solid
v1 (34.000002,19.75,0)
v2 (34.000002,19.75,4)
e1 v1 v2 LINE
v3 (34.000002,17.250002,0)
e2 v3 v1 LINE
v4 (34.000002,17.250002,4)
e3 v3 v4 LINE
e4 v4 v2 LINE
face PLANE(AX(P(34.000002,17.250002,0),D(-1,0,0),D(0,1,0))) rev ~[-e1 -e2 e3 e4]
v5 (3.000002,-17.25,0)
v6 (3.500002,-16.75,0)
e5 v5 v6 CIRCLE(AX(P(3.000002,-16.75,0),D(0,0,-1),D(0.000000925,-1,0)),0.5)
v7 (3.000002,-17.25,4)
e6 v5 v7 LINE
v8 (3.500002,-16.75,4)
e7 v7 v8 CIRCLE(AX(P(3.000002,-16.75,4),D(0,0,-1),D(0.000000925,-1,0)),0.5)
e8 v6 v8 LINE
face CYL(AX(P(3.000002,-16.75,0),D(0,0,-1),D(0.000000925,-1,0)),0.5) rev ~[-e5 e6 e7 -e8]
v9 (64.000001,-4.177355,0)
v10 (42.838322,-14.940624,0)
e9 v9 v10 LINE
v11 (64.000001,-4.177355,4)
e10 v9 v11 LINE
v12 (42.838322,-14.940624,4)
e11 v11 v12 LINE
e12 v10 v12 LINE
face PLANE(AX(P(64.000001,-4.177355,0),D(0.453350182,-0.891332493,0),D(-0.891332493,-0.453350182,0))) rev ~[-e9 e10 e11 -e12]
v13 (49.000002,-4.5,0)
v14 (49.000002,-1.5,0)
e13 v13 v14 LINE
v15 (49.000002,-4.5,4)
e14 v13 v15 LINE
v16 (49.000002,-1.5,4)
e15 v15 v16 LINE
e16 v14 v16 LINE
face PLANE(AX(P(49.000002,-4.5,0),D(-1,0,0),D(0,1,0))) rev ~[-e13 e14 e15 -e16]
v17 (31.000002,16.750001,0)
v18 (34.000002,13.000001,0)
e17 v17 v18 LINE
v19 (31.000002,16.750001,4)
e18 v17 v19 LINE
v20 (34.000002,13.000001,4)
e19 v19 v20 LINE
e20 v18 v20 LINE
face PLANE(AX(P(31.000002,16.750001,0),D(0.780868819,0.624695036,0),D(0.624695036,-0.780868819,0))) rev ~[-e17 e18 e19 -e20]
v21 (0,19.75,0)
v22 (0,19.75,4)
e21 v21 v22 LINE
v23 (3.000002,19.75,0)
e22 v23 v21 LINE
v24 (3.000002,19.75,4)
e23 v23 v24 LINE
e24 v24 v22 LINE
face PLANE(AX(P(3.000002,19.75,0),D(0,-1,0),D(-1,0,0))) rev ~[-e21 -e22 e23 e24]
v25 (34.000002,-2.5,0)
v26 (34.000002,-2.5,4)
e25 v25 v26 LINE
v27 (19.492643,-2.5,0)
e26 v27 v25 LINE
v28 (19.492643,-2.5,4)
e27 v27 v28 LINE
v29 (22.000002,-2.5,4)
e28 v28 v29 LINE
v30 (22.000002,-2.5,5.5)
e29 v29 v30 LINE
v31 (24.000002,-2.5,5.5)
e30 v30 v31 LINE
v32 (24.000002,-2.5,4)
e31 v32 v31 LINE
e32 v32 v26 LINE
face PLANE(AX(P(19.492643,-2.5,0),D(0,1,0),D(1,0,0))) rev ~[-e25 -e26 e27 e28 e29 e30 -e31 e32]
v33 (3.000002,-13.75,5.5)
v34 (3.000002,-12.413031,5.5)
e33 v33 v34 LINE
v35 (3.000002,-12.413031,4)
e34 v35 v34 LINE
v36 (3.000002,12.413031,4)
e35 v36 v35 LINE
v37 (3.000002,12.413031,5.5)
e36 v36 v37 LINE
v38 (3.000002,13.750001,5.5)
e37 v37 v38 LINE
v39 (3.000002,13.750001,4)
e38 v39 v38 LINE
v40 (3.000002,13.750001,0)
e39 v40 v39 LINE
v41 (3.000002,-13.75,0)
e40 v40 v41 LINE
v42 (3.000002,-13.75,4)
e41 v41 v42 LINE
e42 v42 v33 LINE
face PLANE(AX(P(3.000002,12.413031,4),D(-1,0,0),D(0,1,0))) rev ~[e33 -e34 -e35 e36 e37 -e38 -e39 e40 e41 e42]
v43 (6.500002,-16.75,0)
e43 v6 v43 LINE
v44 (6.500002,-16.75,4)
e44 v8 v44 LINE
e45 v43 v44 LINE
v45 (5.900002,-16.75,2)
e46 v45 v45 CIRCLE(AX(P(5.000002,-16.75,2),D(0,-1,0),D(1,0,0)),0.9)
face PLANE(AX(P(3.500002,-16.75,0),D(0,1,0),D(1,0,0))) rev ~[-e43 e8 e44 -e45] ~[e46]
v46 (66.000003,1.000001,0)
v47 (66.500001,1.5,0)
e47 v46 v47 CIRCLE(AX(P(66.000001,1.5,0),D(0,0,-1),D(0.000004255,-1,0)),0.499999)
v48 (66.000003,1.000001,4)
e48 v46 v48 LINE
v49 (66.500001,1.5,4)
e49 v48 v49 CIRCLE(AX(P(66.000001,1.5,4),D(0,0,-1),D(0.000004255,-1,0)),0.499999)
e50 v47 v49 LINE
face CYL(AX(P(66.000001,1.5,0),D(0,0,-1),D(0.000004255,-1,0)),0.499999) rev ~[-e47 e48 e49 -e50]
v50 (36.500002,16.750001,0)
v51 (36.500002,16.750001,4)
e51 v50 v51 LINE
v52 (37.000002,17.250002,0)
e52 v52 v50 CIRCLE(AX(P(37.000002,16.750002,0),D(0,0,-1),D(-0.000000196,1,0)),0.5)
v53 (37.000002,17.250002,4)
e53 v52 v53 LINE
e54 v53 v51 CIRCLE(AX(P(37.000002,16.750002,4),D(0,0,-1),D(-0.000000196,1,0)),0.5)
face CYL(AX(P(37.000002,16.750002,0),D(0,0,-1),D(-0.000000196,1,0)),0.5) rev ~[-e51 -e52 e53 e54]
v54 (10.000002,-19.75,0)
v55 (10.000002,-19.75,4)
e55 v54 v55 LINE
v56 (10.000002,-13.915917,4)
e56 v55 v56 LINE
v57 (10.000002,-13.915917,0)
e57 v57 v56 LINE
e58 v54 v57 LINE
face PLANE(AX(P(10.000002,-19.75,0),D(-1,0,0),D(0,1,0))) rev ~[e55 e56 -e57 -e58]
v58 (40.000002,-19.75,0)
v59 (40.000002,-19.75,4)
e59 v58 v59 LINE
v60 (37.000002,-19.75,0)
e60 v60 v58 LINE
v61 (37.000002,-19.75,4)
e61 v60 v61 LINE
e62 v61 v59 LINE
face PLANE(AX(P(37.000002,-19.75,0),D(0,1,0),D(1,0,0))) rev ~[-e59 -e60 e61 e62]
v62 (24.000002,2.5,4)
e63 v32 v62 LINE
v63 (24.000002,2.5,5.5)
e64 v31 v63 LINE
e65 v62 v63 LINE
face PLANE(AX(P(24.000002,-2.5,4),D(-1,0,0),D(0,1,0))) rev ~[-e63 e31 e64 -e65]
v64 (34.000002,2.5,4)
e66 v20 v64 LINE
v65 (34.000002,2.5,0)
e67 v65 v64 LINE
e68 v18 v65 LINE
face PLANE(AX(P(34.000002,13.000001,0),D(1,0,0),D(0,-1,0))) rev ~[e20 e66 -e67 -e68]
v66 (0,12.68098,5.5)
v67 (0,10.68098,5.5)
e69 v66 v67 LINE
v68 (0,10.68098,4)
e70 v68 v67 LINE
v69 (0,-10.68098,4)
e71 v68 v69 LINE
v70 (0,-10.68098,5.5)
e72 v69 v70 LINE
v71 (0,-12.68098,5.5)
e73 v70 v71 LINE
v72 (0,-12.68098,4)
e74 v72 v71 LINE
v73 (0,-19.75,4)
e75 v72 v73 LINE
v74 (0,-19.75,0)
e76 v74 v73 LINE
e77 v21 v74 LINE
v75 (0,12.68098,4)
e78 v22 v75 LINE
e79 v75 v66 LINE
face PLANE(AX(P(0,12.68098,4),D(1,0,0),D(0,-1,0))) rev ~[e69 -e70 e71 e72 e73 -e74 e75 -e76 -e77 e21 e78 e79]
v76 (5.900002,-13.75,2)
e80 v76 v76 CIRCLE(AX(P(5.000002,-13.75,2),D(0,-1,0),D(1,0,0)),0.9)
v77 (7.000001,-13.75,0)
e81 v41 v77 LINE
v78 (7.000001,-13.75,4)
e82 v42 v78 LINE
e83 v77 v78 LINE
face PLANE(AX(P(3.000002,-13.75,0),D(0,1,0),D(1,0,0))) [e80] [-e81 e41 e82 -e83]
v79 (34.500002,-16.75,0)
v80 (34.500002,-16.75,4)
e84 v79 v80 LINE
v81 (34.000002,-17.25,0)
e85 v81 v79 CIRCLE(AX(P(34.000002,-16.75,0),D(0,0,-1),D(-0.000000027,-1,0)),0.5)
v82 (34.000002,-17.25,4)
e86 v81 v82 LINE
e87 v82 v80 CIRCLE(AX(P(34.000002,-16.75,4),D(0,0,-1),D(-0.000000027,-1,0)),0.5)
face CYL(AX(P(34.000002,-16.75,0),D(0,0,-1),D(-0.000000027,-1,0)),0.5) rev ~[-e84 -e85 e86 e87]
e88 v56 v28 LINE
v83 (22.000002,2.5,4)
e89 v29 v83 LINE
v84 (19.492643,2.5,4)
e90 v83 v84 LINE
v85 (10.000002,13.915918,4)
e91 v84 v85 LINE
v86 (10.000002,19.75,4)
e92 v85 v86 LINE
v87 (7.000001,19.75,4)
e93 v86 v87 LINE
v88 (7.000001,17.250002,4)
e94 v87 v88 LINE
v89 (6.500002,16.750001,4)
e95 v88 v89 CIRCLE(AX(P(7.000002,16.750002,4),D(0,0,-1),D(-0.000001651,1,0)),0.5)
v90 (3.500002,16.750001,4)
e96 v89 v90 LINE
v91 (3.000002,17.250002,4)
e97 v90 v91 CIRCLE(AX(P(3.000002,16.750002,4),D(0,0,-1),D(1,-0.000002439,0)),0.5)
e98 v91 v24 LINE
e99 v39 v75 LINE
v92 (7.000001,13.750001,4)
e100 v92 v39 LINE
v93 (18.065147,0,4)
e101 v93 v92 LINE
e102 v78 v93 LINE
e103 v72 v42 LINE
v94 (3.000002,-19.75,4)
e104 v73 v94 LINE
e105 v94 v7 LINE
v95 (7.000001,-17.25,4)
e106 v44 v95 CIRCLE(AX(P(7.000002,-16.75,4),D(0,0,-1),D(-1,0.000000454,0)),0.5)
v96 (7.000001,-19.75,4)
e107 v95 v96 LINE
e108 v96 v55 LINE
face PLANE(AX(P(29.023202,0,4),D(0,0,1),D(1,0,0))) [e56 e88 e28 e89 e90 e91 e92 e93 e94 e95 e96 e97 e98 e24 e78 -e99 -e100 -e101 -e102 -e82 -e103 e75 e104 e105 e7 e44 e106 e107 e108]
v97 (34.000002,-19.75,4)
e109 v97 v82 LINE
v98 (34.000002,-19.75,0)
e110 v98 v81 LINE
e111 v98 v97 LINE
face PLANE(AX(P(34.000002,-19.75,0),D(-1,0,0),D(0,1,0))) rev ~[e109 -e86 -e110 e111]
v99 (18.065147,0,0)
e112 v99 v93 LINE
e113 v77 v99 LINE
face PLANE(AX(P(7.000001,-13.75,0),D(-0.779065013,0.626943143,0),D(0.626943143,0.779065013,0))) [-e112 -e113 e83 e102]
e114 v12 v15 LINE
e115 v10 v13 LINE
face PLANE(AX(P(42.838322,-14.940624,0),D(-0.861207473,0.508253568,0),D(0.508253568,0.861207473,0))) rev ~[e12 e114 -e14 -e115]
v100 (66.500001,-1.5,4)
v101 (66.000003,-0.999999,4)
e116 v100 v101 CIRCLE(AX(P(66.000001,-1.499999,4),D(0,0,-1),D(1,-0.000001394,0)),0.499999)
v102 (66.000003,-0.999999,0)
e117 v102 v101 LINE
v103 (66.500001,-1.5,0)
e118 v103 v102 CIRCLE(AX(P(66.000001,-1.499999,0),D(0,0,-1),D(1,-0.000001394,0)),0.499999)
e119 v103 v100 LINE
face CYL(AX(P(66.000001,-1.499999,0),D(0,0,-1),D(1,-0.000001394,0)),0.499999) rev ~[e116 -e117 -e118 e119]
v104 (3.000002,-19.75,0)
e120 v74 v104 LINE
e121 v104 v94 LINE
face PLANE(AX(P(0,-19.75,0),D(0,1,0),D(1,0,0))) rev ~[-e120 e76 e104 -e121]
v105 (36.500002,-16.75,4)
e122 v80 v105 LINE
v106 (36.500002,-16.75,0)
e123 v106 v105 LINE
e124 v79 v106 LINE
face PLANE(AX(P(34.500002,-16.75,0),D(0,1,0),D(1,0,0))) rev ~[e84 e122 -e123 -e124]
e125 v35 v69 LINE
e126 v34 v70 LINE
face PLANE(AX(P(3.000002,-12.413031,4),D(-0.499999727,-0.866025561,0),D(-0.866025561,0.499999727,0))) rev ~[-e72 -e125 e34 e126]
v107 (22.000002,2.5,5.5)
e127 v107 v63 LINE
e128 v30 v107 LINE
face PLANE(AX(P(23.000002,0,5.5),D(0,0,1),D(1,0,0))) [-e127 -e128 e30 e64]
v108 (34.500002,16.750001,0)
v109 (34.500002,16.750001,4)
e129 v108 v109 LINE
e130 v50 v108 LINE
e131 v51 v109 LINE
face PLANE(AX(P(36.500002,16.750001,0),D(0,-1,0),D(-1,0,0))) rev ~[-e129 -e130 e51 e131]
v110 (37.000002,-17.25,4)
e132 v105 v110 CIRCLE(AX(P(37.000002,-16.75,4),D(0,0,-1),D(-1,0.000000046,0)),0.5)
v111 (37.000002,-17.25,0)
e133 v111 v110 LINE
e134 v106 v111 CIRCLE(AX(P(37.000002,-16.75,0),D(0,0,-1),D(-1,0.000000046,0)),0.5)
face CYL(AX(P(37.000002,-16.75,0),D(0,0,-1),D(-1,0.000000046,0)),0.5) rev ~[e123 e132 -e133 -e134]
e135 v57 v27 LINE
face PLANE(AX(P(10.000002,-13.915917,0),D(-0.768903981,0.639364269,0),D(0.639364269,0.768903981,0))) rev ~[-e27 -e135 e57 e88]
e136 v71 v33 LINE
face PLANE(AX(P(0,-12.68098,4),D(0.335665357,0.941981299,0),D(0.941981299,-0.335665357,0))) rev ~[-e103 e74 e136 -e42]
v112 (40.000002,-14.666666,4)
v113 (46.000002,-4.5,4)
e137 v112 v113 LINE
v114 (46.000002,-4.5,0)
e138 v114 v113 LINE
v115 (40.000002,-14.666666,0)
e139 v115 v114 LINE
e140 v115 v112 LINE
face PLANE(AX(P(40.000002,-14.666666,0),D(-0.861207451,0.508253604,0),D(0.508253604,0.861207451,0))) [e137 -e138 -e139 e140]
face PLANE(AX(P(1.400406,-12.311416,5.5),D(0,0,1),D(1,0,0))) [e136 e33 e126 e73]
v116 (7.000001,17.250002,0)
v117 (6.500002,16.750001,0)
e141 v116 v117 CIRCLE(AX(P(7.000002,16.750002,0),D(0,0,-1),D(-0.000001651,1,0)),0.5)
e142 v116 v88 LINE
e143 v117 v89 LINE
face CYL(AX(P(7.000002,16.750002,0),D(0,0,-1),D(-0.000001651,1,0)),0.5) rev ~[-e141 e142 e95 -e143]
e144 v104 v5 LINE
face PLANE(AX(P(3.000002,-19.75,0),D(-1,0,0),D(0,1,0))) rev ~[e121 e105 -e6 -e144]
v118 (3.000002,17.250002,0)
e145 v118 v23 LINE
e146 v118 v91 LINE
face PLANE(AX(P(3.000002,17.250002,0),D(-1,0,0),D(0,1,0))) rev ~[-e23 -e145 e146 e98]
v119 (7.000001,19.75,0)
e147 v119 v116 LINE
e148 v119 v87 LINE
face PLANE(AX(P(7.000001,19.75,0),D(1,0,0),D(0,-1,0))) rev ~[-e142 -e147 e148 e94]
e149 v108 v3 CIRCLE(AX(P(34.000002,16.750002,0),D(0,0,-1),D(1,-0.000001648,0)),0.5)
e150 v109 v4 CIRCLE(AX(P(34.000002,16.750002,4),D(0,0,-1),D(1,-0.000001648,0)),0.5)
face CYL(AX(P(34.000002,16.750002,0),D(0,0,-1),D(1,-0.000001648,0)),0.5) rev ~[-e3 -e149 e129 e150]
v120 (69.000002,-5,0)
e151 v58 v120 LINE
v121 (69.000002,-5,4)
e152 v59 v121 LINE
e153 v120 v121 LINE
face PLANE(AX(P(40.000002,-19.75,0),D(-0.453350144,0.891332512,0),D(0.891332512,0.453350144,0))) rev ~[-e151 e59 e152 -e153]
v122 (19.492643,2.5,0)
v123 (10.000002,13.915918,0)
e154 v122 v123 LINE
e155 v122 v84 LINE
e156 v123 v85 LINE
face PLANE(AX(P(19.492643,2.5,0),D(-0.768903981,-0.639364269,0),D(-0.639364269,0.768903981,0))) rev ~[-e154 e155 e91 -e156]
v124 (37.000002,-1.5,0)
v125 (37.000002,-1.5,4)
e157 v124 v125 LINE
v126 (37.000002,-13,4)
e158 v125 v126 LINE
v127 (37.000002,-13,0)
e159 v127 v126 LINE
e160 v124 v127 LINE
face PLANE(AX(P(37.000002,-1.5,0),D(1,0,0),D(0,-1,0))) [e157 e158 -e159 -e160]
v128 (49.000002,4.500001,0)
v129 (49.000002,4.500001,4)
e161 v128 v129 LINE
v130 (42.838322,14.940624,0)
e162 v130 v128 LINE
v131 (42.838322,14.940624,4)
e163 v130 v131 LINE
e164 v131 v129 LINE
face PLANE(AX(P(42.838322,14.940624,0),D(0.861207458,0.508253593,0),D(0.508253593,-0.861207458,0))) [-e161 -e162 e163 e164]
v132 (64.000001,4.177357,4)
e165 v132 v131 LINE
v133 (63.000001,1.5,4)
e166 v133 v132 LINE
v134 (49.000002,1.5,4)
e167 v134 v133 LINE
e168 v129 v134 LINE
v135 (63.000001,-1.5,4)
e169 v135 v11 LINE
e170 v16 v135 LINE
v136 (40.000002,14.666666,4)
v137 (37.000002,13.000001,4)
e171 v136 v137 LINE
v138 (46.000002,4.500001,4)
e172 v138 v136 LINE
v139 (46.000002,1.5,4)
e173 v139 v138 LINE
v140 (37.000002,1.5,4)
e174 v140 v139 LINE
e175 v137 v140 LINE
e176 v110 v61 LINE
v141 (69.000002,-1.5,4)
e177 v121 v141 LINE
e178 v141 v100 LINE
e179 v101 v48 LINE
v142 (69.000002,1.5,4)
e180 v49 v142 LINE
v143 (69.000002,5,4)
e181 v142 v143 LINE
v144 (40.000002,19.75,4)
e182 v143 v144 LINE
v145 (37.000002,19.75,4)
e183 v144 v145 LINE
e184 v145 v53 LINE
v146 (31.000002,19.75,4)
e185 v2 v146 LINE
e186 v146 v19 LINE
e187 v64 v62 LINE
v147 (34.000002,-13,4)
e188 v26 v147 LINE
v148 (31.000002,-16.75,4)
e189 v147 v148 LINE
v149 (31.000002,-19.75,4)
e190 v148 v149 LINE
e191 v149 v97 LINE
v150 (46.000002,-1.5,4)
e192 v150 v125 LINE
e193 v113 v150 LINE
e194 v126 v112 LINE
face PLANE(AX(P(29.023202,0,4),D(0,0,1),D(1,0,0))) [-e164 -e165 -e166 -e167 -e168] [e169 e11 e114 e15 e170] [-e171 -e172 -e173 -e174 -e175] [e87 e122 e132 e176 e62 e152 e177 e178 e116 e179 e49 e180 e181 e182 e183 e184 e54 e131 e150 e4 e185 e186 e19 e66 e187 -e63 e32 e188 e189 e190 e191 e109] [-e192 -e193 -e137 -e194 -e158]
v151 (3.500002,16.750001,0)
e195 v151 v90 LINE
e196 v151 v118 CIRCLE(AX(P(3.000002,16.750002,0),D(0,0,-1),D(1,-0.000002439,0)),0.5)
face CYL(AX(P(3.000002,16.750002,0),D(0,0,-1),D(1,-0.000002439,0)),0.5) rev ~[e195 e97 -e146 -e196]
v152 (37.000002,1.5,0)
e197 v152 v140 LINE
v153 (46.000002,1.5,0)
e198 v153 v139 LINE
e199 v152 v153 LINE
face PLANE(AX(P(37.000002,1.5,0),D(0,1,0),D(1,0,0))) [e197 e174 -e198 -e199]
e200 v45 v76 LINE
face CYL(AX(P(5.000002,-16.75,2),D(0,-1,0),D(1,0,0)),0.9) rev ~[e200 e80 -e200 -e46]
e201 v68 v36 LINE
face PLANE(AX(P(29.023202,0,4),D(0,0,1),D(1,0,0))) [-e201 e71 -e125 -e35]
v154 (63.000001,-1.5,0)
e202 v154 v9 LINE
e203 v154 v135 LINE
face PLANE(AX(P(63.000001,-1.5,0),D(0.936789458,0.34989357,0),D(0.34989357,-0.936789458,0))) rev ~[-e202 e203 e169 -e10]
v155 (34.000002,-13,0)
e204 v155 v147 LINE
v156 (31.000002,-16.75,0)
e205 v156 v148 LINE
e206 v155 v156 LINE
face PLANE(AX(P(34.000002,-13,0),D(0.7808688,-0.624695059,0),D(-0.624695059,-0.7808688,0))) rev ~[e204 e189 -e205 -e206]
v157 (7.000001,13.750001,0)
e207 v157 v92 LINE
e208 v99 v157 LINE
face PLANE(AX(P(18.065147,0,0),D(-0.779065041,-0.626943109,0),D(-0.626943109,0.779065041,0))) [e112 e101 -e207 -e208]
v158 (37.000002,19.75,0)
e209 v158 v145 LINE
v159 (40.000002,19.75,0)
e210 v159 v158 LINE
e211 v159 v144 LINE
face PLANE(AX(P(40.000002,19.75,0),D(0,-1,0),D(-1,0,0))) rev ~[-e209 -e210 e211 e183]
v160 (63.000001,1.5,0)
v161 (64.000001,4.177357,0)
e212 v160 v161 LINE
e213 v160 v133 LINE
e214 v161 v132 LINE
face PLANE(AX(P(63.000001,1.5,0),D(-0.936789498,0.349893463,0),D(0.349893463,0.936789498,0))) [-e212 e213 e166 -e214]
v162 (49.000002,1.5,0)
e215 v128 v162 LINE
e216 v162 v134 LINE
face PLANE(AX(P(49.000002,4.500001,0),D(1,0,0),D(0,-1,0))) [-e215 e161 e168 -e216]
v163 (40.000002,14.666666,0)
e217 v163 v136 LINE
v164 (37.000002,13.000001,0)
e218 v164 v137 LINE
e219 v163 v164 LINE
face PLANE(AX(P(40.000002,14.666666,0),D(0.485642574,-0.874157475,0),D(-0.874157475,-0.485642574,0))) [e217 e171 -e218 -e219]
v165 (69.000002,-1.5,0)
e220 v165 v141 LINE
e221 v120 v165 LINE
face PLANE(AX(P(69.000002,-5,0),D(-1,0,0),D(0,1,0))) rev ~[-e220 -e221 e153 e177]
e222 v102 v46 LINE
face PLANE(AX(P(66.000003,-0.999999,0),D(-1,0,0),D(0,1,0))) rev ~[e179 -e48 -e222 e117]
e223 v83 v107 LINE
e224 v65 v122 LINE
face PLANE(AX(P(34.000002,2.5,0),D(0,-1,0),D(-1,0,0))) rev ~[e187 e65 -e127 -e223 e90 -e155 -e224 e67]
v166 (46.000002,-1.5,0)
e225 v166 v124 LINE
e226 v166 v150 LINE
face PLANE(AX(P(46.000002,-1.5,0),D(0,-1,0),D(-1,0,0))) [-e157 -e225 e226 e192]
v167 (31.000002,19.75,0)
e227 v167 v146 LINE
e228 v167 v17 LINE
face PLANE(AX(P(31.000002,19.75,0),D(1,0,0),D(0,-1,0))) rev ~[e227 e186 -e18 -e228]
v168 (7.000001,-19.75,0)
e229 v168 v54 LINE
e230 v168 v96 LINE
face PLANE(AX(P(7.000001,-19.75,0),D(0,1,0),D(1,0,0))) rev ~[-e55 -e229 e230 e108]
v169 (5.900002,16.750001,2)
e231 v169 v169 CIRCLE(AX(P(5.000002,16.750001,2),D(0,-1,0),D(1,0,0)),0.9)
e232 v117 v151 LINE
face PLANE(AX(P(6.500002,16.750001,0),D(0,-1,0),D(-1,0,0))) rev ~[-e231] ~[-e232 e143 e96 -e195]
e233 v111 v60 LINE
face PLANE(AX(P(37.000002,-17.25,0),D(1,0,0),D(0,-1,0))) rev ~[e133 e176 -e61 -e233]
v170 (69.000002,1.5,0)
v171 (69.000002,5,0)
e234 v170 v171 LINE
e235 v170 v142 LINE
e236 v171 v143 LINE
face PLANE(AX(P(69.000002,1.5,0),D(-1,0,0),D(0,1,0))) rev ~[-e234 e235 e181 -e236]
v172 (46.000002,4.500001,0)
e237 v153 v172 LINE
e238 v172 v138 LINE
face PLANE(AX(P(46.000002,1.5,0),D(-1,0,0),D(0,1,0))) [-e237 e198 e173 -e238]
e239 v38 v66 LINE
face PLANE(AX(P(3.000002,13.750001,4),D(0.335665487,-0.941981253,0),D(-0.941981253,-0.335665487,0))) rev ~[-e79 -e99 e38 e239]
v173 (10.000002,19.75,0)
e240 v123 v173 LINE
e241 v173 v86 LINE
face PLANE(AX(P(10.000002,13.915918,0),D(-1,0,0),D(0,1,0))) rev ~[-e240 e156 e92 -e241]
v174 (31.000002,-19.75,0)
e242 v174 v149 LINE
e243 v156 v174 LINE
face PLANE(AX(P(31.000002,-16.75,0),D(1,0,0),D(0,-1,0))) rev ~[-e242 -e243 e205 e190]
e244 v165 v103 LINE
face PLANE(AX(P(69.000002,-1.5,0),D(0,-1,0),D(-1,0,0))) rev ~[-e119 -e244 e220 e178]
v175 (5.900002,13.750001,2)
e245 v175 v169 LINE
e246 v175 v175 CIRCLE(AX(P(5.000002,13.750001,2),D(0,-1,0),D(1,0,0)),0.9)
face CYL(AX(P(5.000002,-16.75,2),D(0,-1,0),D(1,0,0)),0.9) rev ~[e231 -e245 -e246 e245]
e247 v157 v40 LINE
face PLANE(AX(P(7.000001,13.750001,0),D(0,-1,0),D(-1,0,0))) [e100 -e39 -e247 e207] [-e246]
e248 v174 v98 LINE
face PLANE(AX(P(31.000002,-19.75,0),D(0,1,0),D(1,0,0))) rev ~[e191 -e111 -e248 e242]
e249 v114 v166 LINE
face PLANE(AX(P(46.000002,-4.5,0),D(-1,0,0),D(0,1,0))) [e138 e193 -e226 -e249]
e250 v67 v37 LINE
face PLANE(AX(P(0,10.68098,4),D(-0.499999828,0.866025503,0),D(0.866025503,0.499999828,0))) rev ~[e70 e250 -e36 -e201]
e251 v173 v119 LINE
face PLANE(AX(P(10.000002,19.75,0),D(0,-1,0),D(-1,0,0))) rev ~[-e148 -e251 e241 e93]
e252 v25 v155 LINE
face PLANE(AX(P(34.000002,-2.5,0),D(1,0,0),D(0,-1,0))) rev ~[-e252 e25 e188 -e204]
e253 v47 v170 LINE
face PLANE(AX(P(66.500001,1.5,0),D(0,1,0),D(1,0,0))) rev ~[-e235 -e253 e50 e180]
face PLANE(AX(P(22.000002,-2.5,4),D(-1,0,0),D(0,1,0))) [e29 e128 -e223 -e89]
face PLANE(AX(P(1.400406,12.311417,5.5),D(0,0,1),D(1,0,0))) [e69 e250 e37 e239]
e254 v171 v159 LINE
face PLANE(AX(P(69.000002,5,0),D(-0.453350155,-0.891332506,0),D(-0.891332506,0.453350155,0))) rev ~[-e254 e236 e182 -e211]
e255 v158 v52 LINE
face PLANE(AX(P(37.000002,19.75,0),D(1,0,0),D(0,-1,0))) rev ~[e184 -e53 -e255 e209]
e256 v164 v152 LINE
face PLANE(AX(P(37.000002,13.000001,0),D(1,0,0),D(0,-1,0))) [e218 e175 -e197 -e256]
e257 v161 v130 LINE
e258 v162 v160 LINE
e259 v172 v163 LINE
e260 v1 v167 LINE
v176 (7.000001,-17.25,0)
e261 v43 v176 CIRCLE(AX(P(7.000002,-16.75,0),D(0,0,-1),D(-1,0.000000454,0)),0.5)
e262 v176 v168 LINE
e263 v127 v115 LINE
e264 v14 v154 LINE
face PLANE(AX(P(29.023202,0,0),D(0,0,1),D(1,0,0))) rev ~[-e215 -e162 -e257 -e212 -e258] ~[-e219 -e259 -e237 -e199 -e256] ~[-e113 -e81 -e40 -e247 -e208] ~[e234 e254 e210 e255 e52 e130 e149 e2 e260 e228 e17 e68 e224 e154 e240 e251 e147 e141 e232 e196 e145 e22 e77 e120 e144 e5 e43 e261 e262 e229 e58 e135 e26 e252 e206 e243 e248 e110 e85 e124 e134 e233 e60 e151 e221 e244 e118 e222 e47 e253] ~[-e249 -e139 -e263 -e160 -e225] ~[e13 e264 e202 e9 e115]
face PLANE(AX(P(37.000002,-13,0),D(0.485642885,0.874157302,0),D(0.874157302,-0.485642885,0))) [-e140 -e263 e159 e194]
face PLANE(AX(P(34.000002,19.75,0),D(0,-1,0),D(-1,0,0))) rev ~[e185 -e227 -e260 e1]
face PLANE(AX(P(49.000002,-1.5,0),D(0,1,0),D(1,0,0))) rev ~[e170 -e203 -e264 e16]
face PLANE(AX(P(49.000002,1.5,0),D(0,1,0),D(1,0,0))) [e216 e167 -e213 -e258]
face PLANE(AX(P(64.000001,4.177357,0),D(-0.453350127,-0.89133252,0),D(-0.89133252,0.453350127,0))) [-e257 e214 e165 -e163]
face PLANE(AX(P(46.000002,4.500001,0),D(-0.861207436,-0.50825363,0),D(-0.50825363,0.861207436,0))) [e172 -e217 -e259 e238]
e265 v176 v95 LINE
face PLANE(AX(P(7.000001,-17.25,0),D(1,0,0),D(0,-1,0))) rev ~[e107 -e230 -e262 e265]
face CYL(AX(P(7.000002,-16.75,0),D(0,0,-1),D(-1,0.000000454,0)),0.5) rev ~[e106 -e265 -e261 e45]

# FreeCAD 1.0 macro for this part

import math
import FreeCAD as App
import Part
import Sketcher
Q = App.Units.Quantity

doc = App.newDocument("Part")
params = doc.addObject("Spreadsheet::Sheet", "Params")
for row, (alias, value) in enumerate([
    ("sketch1_radius", "0.499999 mm"),
    ("sketch1_width", "3 mm"),
    ("sketch1_width2", "2 mm"),
    ("sketch1_width3", "9 mm"),
    ("sketch1_width4", "14 mm"),
    ("pad1_length", "4 mm"),
    ("sketch2_diameter", "1.8 mm"),
    ("pocket1_length", "52 mm"),
    ("sketch3_width", "2 mm"),
    ("sketch3_height", "5 mm"),
    ("pad2_length", "1.5 mm"),
], start=1):
    params.set(f"A{row}", alias)
    params.set(f"B{row}", "=" + value)
    params.setAlias(f"B{row}", alias)

body = doc.addObject("PartDesign::Body", "Body")

sketch1 = body.newObject("Sketcher::SketchObject", "Sketch")
sketch1.AttachmentSupport = (doc.getObject("XY_Plane"), [""])
sketch1.MapMode = "FlatFace"
sketch1.addGeometry([
    Part.LineSegment(App.Vector(66, -1, 0), App.Vector(66, 1, 0)),
    Part.ArcOfCircle(Part.Circle(App.Vector(66, 1.5, 0), App.Vector(0, 0, 1), 0.5), math.radians(0), math.radians(270)),
    Part.LineSegment(App.Vector(66.5, 1.5, 0), App.Vector(69, 1.5, 0)),
    Part.LineSegment(App.Vector(69, 1.5, 0), App.Vector(69, 5, 0)),
    Part.LineSegment(App.Vector(69, 5, 0), App.Vector(40, 19.75, 0)),
    Part.LineSegment(App.Vector(40, 19.75, 0), App.Vector(37, 19.75, 0)),
    Part.LineSegment(App.Vector(37, 19.75, 0), App.Vector(37, 17.25, 0)),
    Part.ArcOfCircle(Part.Circle(App.Vector(37, 16.75, 0), App.Vector(0, 0, 1), 0.5), math.radians(-180), math.radians(90)),
    Part.LineSegment(App.Vector(36.5, 16.75, 0), App.Vector(34.5, 16.75, 0)),
    Part.ArcOfCircle(Part.Circle(App.Vector(34, 16.75, 0), App.Vector(0, 0, 1), 0.5), math.radians(90), math.radians(360)),
    Part.LineSegment(App.Vector(34, 17.25, 0), App.Vector(34, 19.75, 0)),
    Part.LineSegment(App.Vector(34, 19.75, 0), App.Vector(31, 19.75, 0)),
    Part.LineSegment(App.Vector(31, 19.75, 0), App.Vector(31, 16.75, 0)),
    Part.LineSegment(App.Vector(31, 16.75, 0), App.Vector(34, 13, 0)),
    Part.LineSegment(App.Vector(34, 13, 0), App.Vector(34, 2.5, 0)),
    Part.LineSegment(App.Vector(34, 2.5, 0), App.Vector(19.49, 2.5, 0)),
    Part.LineSegment(App.Vector(19.49, 2.5, 0), App.Vector(10, 13.92, 0)),
    Part.LineSegment(App.Vector(10, 13.92, 0), App.Vector(10, 19.75, 0)),
    Part.LineSegment(App.Vector(10, 19.75, 0), App.Vector(7, 19.75, 0)),
    Part.LineSegment(App.Vector(7, 19.75, 0), App.Vector(7, 17.25, 0)),
    Part.ArcOfCircle(Part.Circle(App.Vector(7, 16.75, 0), App.Vector(0, 0, 1), 0.5), math.radians(-180), math.radians(90)),
    Part.LineSegment(App.Vector(6.5, 16.75, 0), App.Vector(3.5, 16.75, 0)),
    Part.ArcOfCircle(Part.Circle(App.Vector(3, 16.75, 0), App.Vector(0, 0, 1), 0.5), math.radians(90), math.radians(360)),
    Part.LineSegment(App.Vector(3, 17.25, 0), App.Vector(3, 19.75, 0)),
    Part.LineSegment(App.Vector(3, 19.75, 0), App.Vector(0, 19.75, 0)),
    Part.LineSegment(App.Vector(0, 19.75, 0), App.Vector(0, -19.75, 0)),
    Part.LineSegment(App.Vector(0, -19.75, 0), App.Vector(3, -19.75, 0)),
    Part.LineSegment(App.Vector(3, -19.75, 0), App.Vector(3, -17.25, 0)),
    Part.ArcOfCircle(Part.Circle(App.Vector(3, -16.75, 0), App.Vector(0, 0, 1), 0.5), math.radians(0), math.radians(270)),
    Part.LineSegment(App.Vector(3.5, -16.75, 0), App.Vector(6.5, -16.75, 0)),
    Part.ArcOfCircle(Part.Circle(App.Vector(7, -16.75, 0), App.Vector(0, 0, 1), 0.5), math.radians(-90), math.radians(180)),
    Part.LineSegment(App.Vector(7, -17.25, 0), App.Vector(7, -19.75, 0)),
    Part.LineSegment(App.Vector(7, -19.75, 0), App.Vector(10, -19.75, 0)),
    Part.LineSegment(App.Vector(10, -19.75, 0), App.Vector(10, -13.92, 0)),
    Part.LineSegment(App.Vector(10, -13.92, 0), App.Vector(19.49, -2.5, 0)),
    Part.LineSegment(App.Vector(19.49, -2.5, 0), App.Vector(34, -2.5, 0)),
    Part.LineSegment(App.Vector(34, -2.5, 0), App.Vector(34, -13, 0)),
    Part.LineSegment(App.Vector(34, -13, 0), App.Vector(31, -16.75, 0)),
    Part.LineSegment(App.Vector(31, -16.75, 0), App.Vector(31, -19.75, 0)),
    Part.LineSegment(App.Vector(31, -19.75, 0), App.Vector(34, -19.75, 0)),
    Part.LineSegment(App.Vector(34, -19.75, 0), App.Vector(34, -17.25, 0)),
    Part.ArcOfCircle(Part.Circle(App.Vector(34, -16.75, 0), App.Vector(0, 0, 1), 0.5), math.radians(0), math.radians(270)),
    Part.LineSegment(App.Vector(34.5, -16.75, 0), App.Vector(36.5, -16.75, 0)),
    Part.ArcOfCircle(Part.Circle(App.Vector(37, -16.75, 0), App.Vector(0, 0, 1), 0.5), math.radians(-90), math.radians(180)),
    Part.LineSegment(App.Vector(37, -17.25, 0), App.Vector(37, -19.75, 0)),
    Part.LineSegment(App.Vector(37, -19.75, 0), App.Vector(40, -19.75, 0)),
    Part.LineSegment(App.Vector(40, -19.75, 0), App.Vector(69, -5, 0)),
    Part.LineSegment(App.Vector(69, -5, 0), App.Vector(69, -1.5, 0)),
    Part.LineSegment(App.Vector(69, -1.5, 0), App.Vector(66.5, -1.5, 0)),
    Part.ArcOfCircle(Part.Circle(App.Vector(66, -1.5, 0), App.Vector(0, 0, 1), 0.5), math.radians(90), math.radians(360)),
    Part.LineSegment(App.Vector(37, -1.5, 0), App.Vector(46, -1.5, 0)),
    Part.LineSegment(App.Vector(46, -1.5, 0), App.Vector(46, -4.5, 0)),
    Part.LineSegment(App.Vector(46, -4.5, 0), App.Vector(40, -14.67, 0)),
    Part.LineSegment(App.Vector(40, -14.67, 0), App.Vector(37, -13, 0)),
    Part.LineSegment(App.Vector(37, -13, 0), App.Vector(37, -1.5, 0)),
    Part.LineSegment(App.Vector(64, -4.18, 0), App.Vector(42.84, -14.94, 0)),
    Part.LineSegment(App.Vector(42.84, -14.94, 0), App.Vector(49, -4.5, 0)),
    Part.LineSegment(App.Vector(49, -4.5, 0), App.Vector(49, -1.5, 0)),
    Part.LineSegment(App.Vector(49, -1.5, 0), App.Vector(63, -1.5, 0)),
    Part.LineSegment(App.Vector(63, -1.5, 0), App.Vector(64, -4.18, 0)),
    Part.LineSegment(App.Vector(7, -13.75, 0), App.Vector(3, -13.75, 0)),
    Part.LineSegment(App.Vector(3, -13.75, 0), App.Vector(3, 13.75, 0)),
    Part.LineSegment(App.Vector(3, 13.75, 0), App.Vector(7, 13.75, 0)),
    Part.LineSegment(App.Vector(7, 13.75, 0), App.Vector(18.07, 0, 0)),
    Part.LineSegment(App.Vector(18.07, 0, 0), App.Vector(7, -13.75, 0)),
    Part.LineSegment(App.Vector(37, 1.5, 0), App.Vector(37, 13, 0)),
    Part.LineSegment(App.Vector(37, 13, 0), App.Vector(40, 14.67, 0)),
    Part.LineSegment(App.Vector(40, 14.67, 0), App.Vector(46, 4.5, 0)),
    Part.LineSegment(App.Vector(46, 4.5, 0), App.Vector(46, 1.5, 0)),
    Part.LineSegment(App.Vector(46, 1.5, 0), App.Vector(37, 1.5, 0)),
    Part.LineSegment(App.Vector(64, 4.18, 0), App.Vector(63, 1.5, 0)),
    Part.LineSegment(App.Vector(63, 1.5, 0), App.Vector(49, 1.5, 0)),
    Part.LineSegment(App.Vector(49, 1.5, 0), App.Vector(49, 4.5, 0)),
    Part.LineSegment(App.Vector(49, 4.5, 0), App.Vector(42.84, 14.94, 0)),
    Part.LineSegment(App.Vector(42.84, 14.94, 0), App.Vector(64, 4.18, 0)),
], False)
sketch1.addConstraint([
    Sketcher.Constraint("Coincident", 0, 2, 1, 2),
    Sketcher.Constraint("Coincident", 1, 1, 2, 1),
    Sketcher.Constraint("Coincident", 2, 2, 3, 1),
    Sketcher.Constraint("Coincident", 3, 2, 4, 1),
    Sketcher.Constraint("Coincident", 4, 2, 5, 1),
    Sketcher.Constraint("Coincident", 5, 2, 6, 1),
    Sketcher.Constraint("Coincident", 6, 2, 7, 2),
    Sketcher.Constraint("Coincident", 7, 1, 8, 1),
    Sketcher.Constraint("Coincident", 8, 2, 9, 2),
    Sketcher.Constraint("Coincident", 9, 1, 10, 1),
    Sketcher.Constraint("Coincident", 10, 2, 11, 1),
    Sketcher.Constraint("Coincident", 11, 2, 12, 1),
    Sketcher.Constraint("Coincident", 12, 2, 13, 1),
    Sketcher.Constraint("Coincident", 13, 2, 14, 1),
    Sketcher.Constraint("Coincident", 14, 2, 15, 1),
    Sketcher.Constraint("Coincident", 15, 2, 16, 1),
    Sketcher.Constraint("Coincident", 16, 2, 17, 1),
    Sketcher.Constraint("Coincident", 17, 2, 18, 1),
    Sketcher.Constraint("Coincident", 18, 2, 19, 1),
    Sketcher.Constraint("Coincident", 19, 2, 20, 2),
    Sketcher.Constraint("Coincident", 20, 1, 21, 1),
    Sketcher.Constraint("Coincident", 21, 2, 22, 2),
    Sketcher.Constraint("Coincident", 22, 1, 23, 1),
    Sketcher.Constraint("Coincident", 23, 2, 24, 1),
    Sketcher.Constraint("Coincident", 24, 2, 25, 1),
    Sketcher.Constraint("Coincident", 25, 2, 26, 1),
    Sketcher.Constraint("Coincident", 26, 2, 27, 1),
    Sketcher.Constraint("Coincident", 27, 2, 28, 2),
    Sketcher.Constraint("Coincident", 28, 1, 29, 1),
    Sketcher.Constraint("Coincident", 29, 2, 30, 2),
    Sketcher.Constraint("Coincident", 30, 1, 31, 1),
    Sketcher.Constraint("Coincident", 31, 2, 32, 1),
    Sketcher.Constraint("Coincident", 32, 2, 33, 1),
    Sketcher.Constraint("Coincident", 33, 2, 34, 1),
    Sketcher.Constraint("Coincident", 34, 2, 35, 1),
    Sketcher.Constraint("Coincident", 35, 2, 36, 1),
    Sketcher.Constraint("Coincident", 36, 2, 37, 1),
    Sketcher.Constraint("Coincident", 37, 2, 38, 1),
    Sketcher.Constraint("Coincident", 38, 2, 39, 1),
    Sketcher.Constraint("Coincident", 39, 2, 40, 1),
    Sketcher.Constraint("Coincident", 40, 2, 41, 2),
    Sketcher.Constraint("Coincident", 41, 1, 42, 1),
    Sketcher.Constraint("Coincident", 42, 2, 43, 2),
    Sketcher.Constraint("Coincident", 43, 1, 44, 1),
    Sketcher.Constraint("Coincident", 44, 2, 45, 1),
    Sketcher.Constraint("Coincident", 45, 2, 46, 1),
    Sketcher.Constraint("Coincident", 46, 2, 47, 1),
    Sketcher.Constraint("Coincident", 47, 2, 48, 1),
    Sketcher.Constraint("Coincident", 48, 2, 49, 2),
    Sketcher.Constraint("Coincident", 49, 1, 0, 1),
    Sketcher.Constraint("Coincident", 50, 2, 51, 1),
    Sketcher.Constraint("Coincident", 51, 2, 52, 1),
    Sketcher.Constraint("Coincident", 52, 2, 53, 1),
    Sketcher.Constraint("Coincident", 53, 2, 54, 1),
    Sketcher.Constraint("Coincident", 54, 2, 50, 1),
    Sketcher.Constraint("Coincident", 55, 2, 56, 1),
    Sketcher.Constraint("Coincident", 56, 2, 57, 1),
    Sketcher.Constraint("Coincident", 57, 2, 58, 1),
    Sketcher.Constraint("Coincident", 58, 2, 59, 1),
    Sketcher.Constraint("Coincident", 59, 2, 55, 1),
    Sketcher.Constraint("Coincident", 60, 2, 61, 1),
    Sketcher.Constraint("Coincident", 61, 2, 62, 1),
    Sketcher.Constraint("Coincident", 62, 2, 63, 1),
    Sketcher.Constraint("Coincident", 63, 2, 64, 1),
    Sketcher.Constraint("Coincident", 64, 2, 60, 1),
    Sketcher.Constraint("Coincident", 65, 2, 66, 1),
    Sketcher.Constraint("Coincident", 66, 2, 67, 1),
    Sketcher.Constraint("Coincident", 67, 2, 68, 1),
    Sketcher.Constraint("Coincident", 68, 2, 69, 1),
    Sketcher.Constraint("Coincident", 69, 2, 65, 1),
    Sketcher.Constraint("Coincident", 70, 2, 71, 1),
    Sketcher.Constraint("Coincident", 71, 2, 72, 1),
    Sketcher.Constraint("Coincident", 72, 2, 73, 1),
    Sketcher.Constraint("Coincident", 73, 2, 74, 1),
    Sketcher.Constraint("Coincident", 74, 2, 70, 1),
    Sketcher.Constraint("Vertical", 0),
    Sketcher.Constraint("Horizontal", 2),
    Sketcher.Constraint("Vertical", 3),
    Sketcher.Constraint("Horizontal", 5),
    Sketcher.Constraint("Vertical", 6),
    Sketcher.Constraint("Horizontal", 8),
    Sketcher.Constraint("Vertical", 10),
    Sketcher.Constraint("Horizontal", 11),
    Sketcher.Constraint("Vertical", 12),
    Sketcher.Constraint("Vertical", 14),
    Sketcher.Constraint("Horizontal", 15),
    Sketcher.Constraint("Vertical", 17),
    Sketcher.Constraint("Horizontal", 18),
    Sketcher.Constraint("Vertical", 19),
    Sketcher.Constraint("Horizontal", 21),
    Sketcher.Constraint("Vertical", 23),
    Sketcher.Constraint("Horizontal", 24),
    Sketcher.Constraint("Vertical", 25),
    Sketcher.Constraint("Horizontal", 26),
    Sketcher.Constraint("Vertical", 27),
    Sketcher.Constraint("Horizontal", 29),
    Sketcher.Constraint("Vertical", 31),
    Sketcher.Constraint("Horizontal", 32),
    Sketcher.Constraint("Vertical", 33),
    Sketcher.Constraint("Horizontal", 35),
    Sketcher.Constraint("Vertical", 36),
    Sketcher.Constraint("Vertical", 38),
    Sketcher.Constraint("Horizontal", 39),
    Sketcher.Constraint("Vertical", 40),
    Sketcher.Constraint("Horizontal", 42),
    Sketcher.Constraint("Vertical", 44),
    Sketcher.Constraint("Horizontal", 45),
    Sketcher.Constraint("Vertical", 47),
    Sketcher.Constraint("Horizontal", 48),
    Sketcher.Constraint("Horizontal", 50),
    Sketcher.Constraint("Vertical", 51),
    Sketcher.Constraint("Vertical", 54),
    Sketcher.Constraint("Vertical", 57),
    Sketcher.Constraint("Horizontal", 58),
    Sketcher.Constraint("Horizontal", 60),
    Sketcher.Constraint("Vertical", 61),
    Sketcher.Constraint("Horizontal", 62),
    Sketcher.Constraint("Vertical", 65),
    Sketcher.Constraint("Vertical", 68),
    Sketcher.Constraint("Horizontal", 69),
    Sketcher.Constraint("Horizontal", 71),
    Sketcher.Constraint("Vertical", 72),
    Sketcher.Constraint("Equal", 1, 7),
    Sketcher.Constraint("Equal", 7, 9),
    Sketcher.Constraint("Equal", 9, 20),
    Sketcher.Constraint("Equal", 20, 22),
    Sketcher.Constraint("Equal", 22, 28),
    Sketcher.Constraint("Equal", 28, 30),
    Sketcher.Constraint("Equal", 30, 41),
    Sketcher.Constraint("Equal", 41, 43),
    Sketcher.Constraint("Equal", 43, 49),
    Sketcher.Constraint("Symmetric", 24, 2, 25, 2, -1, 1),
    Sketcher.Constraint("Symmetric", 22, 3, 28, 3, -1),
    Sketcher.Constraint("Symmetric", 20, 3, 30, 3, -1),
    Sketcher.Constraint("Symmetric", 9, 3, 41, 3, -1),
    Sketcher.Constraint("Symmetric", 7, 3, 43, 3, -1),
    Sketcher.Constraint("Symmetric", 1, 3, 49, 3, -1),
    Sketcher.Constraint("Symmetric", 18, 2, 31, 2, -1),
    Sketcher.Constraint("Symmetric", 16, 2, 33, 2, -1),
    Sketcher.Constraint("Symmetric", 15, 2, 34, 2, -1),
    Sketcher.Constraint("Symmetric", 13, 2, 36, 2, -1),
    Sketcher.Constraint("Symmetric", 12, 2, 37, 2, -1),
    Sketcher.Constraint("Symmetric", 10, 2, 39, 2, -1),
    Sketcher.Constraint("Symmetric", 5, 2, 44, 2, -1),
    Sketcher.Constraint("Symmetric", 3, 2, 46, 2, -1),
    Sketcher.Constraint("Symmetric", 62, 2, 64, 2, -1),
    Sketcher.Constraint("Symmetric", 53, 2, 65, 2, -1),
    Sketcher.Constraint("Symmetric", 52, 2, 66, 2, -1),
    Sketcher.Constraint("Symmetric", 51, 2, 67, 2, -1),
    Sketcher.Constraint("Symmetric", 58, 2, 70, 2, -1),
    Sketcher.Constraint("Symmetric", 56, 2, 72, 2, -1),
    Sketcher.Constraint("Symmetric", 55, 2, 73, 2, -1),
    Sketcher.Constraint("Symmetric", 59, 2, 74, 2, -1),
    Sketcher.Constraint("PointOnObject", 63, 2, -1),
    Sketcher.Constraint("Parallel", 46, 55),
    Sketcher.Constraint("Parallel", 52, 56),
    Sketcher.Constraint("Parallel", 4, 74),
    Sketcher.Constraint("Horizontal", 7, 3, 9, 3),
    Sketcher.Constraint("Horizontal", 9, 3, 20, 3),
    Sketcher.Constraint("Horizontal", 20, 3, 22, 3),
    Sketcher.Constraint("Horizontal", 22, 3, 7, 1),
    Sketcher.Constraint("Horizontal", 5, 2, 10, 2),
    Sketcher.Constraint("Horizontal", 8, 2, 12, 2),
    Sketcher.Constraint("Horizontal", 11, 2, 17, 2),
    Sketcher.Constraint("Horizontal", 12, 2, 20, 1),
    Sketcher.Constraint("Horizontal", 18, 2, 23, 2),
    Sketcher.Constraint("Horizontal", 43, 3, 28, 1),
    Sketcher.Constraint("Horizontal", 37, 2, 41, 1),
    Sketcher.Constraint("Horizontal", 49, 3, 47, 2),
    Sketcher.Constraint("Horizontal", 48, 2, 50, 2),
    Sketcher.Constraint("Horizontal", 36, 2, 53, 2),
    Sketcher.Constraint("Horizontal", 51, 2, 56, 2),
    Sketcher.Constraint("Horizontal", 54, 2, 57, 2),
    Sketcher.Constraint("Horizontal", 2, 2, 68, 2),
    Sketcher.Constraint("Horizontal", 69, 2, 70, 2),
    Sketcher.Constraint("Vertical", 43, 3, 5, 2),
    Sketcher.Constraint("Vertical", 41, 3, 9, 1),
    Sketcher.Constraint("Vertical", 10, 2, 13, 2),
    Sketcher.Constraint("Vertical", 30, 3, 18, 2),
    Sketcher.Constraint("Vertical", 28, 3, 22, 1),
    Sketcher.Constraint("Vertical", 23, 2, 26, 2),
    Sketcher.Constraint("Vertical", 45, 2, 52, 2),
    Sketcher.Constraint("Vertical", 44, 2, 53, 2),
    Sketcher.Constraint("Vertical", 27, 2, 60, 2),
    Sketcher.Constraint("Vertical", 31, 2, 62, 2),
    Sketcher.Constraint("Equal", 5, 11),
    Sketcher.Constraint("Equal", 11, 18),
    Sketcher.Constraint("Equal", 18, 21),
    Sketcher.Constraint("Equal", 21, 24),
    Sketcher.Constraint("Equal", 42, 0),
    Sketcher.Constraint("Equal", 45, 12),
    Sketcher.Constraint("Equal", 48, 27),
    Sketcher.Constraint("Equal", 38, 51),
    Sketcher.Constraint("Radius", 1, Q("0.499999 mm")),
    Sketcher.Constraint("DistanceX", 5, 2, 5, 1, Q("3 mm")),
    Sketcher.Constraint("DistanceX", 8, 2, 8, 1, Q("2 mm")),
    Sketcher.Constraint("DistanceX", 50, 1, 50, 2, Q("9 mm")),
    Sketcher.Constraint("DistanceX", 58, 1, 58, 2, Q("14 mm")),
    Sketcher.Constraint("DistanceY", 3, 1, 3, 2, Q("3.5 mm")),
    Sketcher.Constraint("DistanceY", 14, 2, 14, 1, Q("10.500001 mm")),
    Sketcher.Constraint("DistanceY", 25, 2, 25, 1, Q("39.499999 mm")),
    Sketcher.Constraint("DistanceY", 54, 1, 54, 2, Q("11.5 mm")),
    Sketcher.Constraint("DistanceY", 61, 1, 61, 2, Q("27.5 mm")),
    Sketcher.Constraint("DistanceX", -1, 1, 1, 3, Q("66.000001 mm")),
    Sketcher.Constraint("DistanceX", -1, 1, 7, 3, Q("37.000002 mm")),
    Sketcher.Constraint("DistanceX", -1, 1, 56, 2, Q("49.000002 mm")),
    Sketcher.Constraint("DistanceX", -1, 1, 59, 2, Q("64.000001 mm")),
    Sketcher.Constraint("Distance", 16, Q("14.847 mm")),
    Sketcher.Constraint("DistanceX", 15, 2, 15, 1, Q("14.507359 mm")),
    Sketcher.Constraint("Distance", 52, Q("11.80513 mm")),
    Sketcher.Constraint("Distance", 56, Q("12.123239 mm")),
    Sketcher.Constraint("Distance", 63, Q("17.649362 mm")),
    Sketcher.Constraint("DistanceX", -1, 1, 0, 2, Q("66.000003 mm")),
])
sketch1.setExpression("Constraints[193]", "Params.sketch1_radius")
sketch1.setExpression("Constraints[194]", "Params.sketch1_width")
sketch1.setExpression("Constraints[195]", "Params.sketch1_width2")
sketch1.setExpression("Constraints[196]", "Params.sketch1_width3")
sketch1.setExpression("Constraints[197]", "Params.sketch1_width4")
pad1 = body.newObject("PartDesign::Pad", "Pad")
pad1.Profile = sketch1
pad1.setExpression("Length", "Params.pad1_length")

sketch2 = body.newObject("Sketcher::SketchObject", "Sketch001")
sketch2.AttachmentSupport = (doc.getObject("XZ_Plane"), [""])
sketch2.MapMode = "FlatFace"
sketch2.AttachmentOffset = App.Placement(App.Vector(0, 0, 16.75), App.Rotation())
sketch2.addGeometry(Part.Circle(App.Vector(5, 2, 0), App.Vector(0, 0, 1), 0.9), False)
sketch2.addConstraint([
    Sketcher.Constraint("Diameter", 0, Q("1.8 mm")),
    Sketcher.Constraint("DistanceY", -1, 1, 0, 3, Q("2 mm")),
    Sketcher.Constraint("DistanceX", -1, 1, 0, 3, Q("5.000002 mm")),
])
sketch2.setExpression("Constraints[0]", "Params.sketch2_diameter")
pocket1 = body.newObject("PartDesign::Pocket", "Pocket")
pocket1.Profile = sketch2
pocket1.setExpression("Length", "Params.pocket1_length")

sketch3 = body.newObject("Sketcher::SketchObject", "Sketch002")
sketch3.AttachmentSupport = (doc.getObject("XY_Plane"), [""])
sketch3.MapMode = "FlatFace"
sketch3.AttachmentOffset = App.Placement(App.Vector(0, 0, 4), App.Rotation())
sketch3.addGeometry([
    Part.LineSegment(App.Vector(3, 12.4, 0), App.Vector(3, 13.8, 0)),
    Part.LineSegment(App.Vector(3, 13.8, 0), App.Vector(0, 12.7, 0)),
    Part.LineSegment(App.Vector(0, 12.7, 0), App.Vector(0, 10.7, 0)),
    Part.LineSegment(App.Vector(0, 10.7, 0), App.Vector(3, 12.4, 0)),
    Part.LineSegment(App.Vector(22, 2.5, 0), App.Vector(22, -2.5, 0)),
    Part.LineSegment(App.Vector(22, -2.5, 0), App.Vector(24, -2.5, 0)),
    Part.LineSegment(App.Vector(24, -2.5, 0), App.Vector(24, 2.5, 0)),
    Part.LineSegment(App.Vector(24, 2.5, 0), App.Vector(22, 2.5, 0)),
    Part.LineSegment(App.Vector(3, -13.7, 0), App.Vector(3, -12.4, 0)),
    Part.LineSegment(App.Vector(3, -12.4, 0), App.Vector(0, -10.7, 0)),
    Part.LineSegment(App.Vector(0, -10.7, 0), App.Vector(0, -12.7, 0)),
    Part.LineSegment(App.Vector(0, -12.7, 0), App.Vector(3, -13.7, 0)),
], False)
sketch3.addConstraint([
    Sketcher.Constraint("Coincident", 0, 2, 1, 1),
    Sketcher.Constraint("Coincident", 1, 2, 2, 1),
    Sketcher.Constraint("Coincident", 2, 2, 3, 1),
    Sketcher.Constraint("Coincident", 3, 2, 0, 1),
    Sketcher.Constraint("Coincident", 4, 2, 5, 1),
    Sketcher.Constraint("Coincident", 5, 2, 6, 1),
    Sketcher.Constraint("Coincident", 6, 2, 7, 1),
    Sketcher.Constraint("Coincident", 7, 2, 4, 1),
    Sketcher.Constraint("Coincident", 8, 2, 9, 1),
    Sketcher.Constraint("Coincident", 9, 2, 10, 1),
    Sketcher.Constraint("Coincident", 10, 2, 11, 1),
    Sketcher.Constraint("Coincident", 11, 2, 8, 1),
    Sketcher.Constraint("Vertical", 0),
    Sketcher.Constraint("Vertical", 2),
    Sketcher.Constraint("Vertical", 4),
    Sketcher.Constraint("Horizontal", 5),
    Sketcher.Constraint("Vertical", 6),
    Sketcher.Constraint("Horizontal", 7),
    Sketcher.Constraint("Vertical", 8),
    Sketcher.Constraint("Vertical", 10),
    Sketcher.Constraint("Symmetric", 2, 2, 9, 2, -1, 1),
    Sketcher.Constraint("Symmetric", 3, 2, 8, 2, -1),
    Sketcher.Constraint("Symmetric", 1, 2, 10, 2, -1),
    Sketcher.Constraint("Equal", 7, 2),
    Sketcher.Constraint("Equal", 0, 8),
    Sketcher.Constraint("DistanceX", 5, 1, 5, 2, Q("2 mm")),
    Sketcher.Constraint("DistanceY", 4, 2, 4, 1, Q("5 mm")),
    Sketcher.Constraint("Angle", 3, Q("29.999989 deg")),
    Sketcher.Constraint("DistanceX", -1, 1, 4, 2, Q("22.000002 mm")),
    Sketcher.Constraint("DistanceX", 3, 2, 4, 2, Q("18.999999 mm")),
    Sketcher.Constraint("DistanceY", 4, 2, -1, 1, Q("2.5 mm")),
    Sketcher.Constraint("DistanceY", -1, 1, 0, 2, Q("13.750001 mm")),
    Sketcher.Constraint("DistanceY", 0, 1, 0, 2, Q("1.336969 mm")),
])
sketch3.setExpression("Constraints[25]", "Params.sketch3_width")
sketch3.setExpression("Constraints[26]", "Params.sketch3_height")
pad2 = body.newObject("PartDesign::Pad", "Pad001")
pad2.Profile = sketch3
pad2.setExpression("Length", "Params.pad2_length")

doc.recompute()
